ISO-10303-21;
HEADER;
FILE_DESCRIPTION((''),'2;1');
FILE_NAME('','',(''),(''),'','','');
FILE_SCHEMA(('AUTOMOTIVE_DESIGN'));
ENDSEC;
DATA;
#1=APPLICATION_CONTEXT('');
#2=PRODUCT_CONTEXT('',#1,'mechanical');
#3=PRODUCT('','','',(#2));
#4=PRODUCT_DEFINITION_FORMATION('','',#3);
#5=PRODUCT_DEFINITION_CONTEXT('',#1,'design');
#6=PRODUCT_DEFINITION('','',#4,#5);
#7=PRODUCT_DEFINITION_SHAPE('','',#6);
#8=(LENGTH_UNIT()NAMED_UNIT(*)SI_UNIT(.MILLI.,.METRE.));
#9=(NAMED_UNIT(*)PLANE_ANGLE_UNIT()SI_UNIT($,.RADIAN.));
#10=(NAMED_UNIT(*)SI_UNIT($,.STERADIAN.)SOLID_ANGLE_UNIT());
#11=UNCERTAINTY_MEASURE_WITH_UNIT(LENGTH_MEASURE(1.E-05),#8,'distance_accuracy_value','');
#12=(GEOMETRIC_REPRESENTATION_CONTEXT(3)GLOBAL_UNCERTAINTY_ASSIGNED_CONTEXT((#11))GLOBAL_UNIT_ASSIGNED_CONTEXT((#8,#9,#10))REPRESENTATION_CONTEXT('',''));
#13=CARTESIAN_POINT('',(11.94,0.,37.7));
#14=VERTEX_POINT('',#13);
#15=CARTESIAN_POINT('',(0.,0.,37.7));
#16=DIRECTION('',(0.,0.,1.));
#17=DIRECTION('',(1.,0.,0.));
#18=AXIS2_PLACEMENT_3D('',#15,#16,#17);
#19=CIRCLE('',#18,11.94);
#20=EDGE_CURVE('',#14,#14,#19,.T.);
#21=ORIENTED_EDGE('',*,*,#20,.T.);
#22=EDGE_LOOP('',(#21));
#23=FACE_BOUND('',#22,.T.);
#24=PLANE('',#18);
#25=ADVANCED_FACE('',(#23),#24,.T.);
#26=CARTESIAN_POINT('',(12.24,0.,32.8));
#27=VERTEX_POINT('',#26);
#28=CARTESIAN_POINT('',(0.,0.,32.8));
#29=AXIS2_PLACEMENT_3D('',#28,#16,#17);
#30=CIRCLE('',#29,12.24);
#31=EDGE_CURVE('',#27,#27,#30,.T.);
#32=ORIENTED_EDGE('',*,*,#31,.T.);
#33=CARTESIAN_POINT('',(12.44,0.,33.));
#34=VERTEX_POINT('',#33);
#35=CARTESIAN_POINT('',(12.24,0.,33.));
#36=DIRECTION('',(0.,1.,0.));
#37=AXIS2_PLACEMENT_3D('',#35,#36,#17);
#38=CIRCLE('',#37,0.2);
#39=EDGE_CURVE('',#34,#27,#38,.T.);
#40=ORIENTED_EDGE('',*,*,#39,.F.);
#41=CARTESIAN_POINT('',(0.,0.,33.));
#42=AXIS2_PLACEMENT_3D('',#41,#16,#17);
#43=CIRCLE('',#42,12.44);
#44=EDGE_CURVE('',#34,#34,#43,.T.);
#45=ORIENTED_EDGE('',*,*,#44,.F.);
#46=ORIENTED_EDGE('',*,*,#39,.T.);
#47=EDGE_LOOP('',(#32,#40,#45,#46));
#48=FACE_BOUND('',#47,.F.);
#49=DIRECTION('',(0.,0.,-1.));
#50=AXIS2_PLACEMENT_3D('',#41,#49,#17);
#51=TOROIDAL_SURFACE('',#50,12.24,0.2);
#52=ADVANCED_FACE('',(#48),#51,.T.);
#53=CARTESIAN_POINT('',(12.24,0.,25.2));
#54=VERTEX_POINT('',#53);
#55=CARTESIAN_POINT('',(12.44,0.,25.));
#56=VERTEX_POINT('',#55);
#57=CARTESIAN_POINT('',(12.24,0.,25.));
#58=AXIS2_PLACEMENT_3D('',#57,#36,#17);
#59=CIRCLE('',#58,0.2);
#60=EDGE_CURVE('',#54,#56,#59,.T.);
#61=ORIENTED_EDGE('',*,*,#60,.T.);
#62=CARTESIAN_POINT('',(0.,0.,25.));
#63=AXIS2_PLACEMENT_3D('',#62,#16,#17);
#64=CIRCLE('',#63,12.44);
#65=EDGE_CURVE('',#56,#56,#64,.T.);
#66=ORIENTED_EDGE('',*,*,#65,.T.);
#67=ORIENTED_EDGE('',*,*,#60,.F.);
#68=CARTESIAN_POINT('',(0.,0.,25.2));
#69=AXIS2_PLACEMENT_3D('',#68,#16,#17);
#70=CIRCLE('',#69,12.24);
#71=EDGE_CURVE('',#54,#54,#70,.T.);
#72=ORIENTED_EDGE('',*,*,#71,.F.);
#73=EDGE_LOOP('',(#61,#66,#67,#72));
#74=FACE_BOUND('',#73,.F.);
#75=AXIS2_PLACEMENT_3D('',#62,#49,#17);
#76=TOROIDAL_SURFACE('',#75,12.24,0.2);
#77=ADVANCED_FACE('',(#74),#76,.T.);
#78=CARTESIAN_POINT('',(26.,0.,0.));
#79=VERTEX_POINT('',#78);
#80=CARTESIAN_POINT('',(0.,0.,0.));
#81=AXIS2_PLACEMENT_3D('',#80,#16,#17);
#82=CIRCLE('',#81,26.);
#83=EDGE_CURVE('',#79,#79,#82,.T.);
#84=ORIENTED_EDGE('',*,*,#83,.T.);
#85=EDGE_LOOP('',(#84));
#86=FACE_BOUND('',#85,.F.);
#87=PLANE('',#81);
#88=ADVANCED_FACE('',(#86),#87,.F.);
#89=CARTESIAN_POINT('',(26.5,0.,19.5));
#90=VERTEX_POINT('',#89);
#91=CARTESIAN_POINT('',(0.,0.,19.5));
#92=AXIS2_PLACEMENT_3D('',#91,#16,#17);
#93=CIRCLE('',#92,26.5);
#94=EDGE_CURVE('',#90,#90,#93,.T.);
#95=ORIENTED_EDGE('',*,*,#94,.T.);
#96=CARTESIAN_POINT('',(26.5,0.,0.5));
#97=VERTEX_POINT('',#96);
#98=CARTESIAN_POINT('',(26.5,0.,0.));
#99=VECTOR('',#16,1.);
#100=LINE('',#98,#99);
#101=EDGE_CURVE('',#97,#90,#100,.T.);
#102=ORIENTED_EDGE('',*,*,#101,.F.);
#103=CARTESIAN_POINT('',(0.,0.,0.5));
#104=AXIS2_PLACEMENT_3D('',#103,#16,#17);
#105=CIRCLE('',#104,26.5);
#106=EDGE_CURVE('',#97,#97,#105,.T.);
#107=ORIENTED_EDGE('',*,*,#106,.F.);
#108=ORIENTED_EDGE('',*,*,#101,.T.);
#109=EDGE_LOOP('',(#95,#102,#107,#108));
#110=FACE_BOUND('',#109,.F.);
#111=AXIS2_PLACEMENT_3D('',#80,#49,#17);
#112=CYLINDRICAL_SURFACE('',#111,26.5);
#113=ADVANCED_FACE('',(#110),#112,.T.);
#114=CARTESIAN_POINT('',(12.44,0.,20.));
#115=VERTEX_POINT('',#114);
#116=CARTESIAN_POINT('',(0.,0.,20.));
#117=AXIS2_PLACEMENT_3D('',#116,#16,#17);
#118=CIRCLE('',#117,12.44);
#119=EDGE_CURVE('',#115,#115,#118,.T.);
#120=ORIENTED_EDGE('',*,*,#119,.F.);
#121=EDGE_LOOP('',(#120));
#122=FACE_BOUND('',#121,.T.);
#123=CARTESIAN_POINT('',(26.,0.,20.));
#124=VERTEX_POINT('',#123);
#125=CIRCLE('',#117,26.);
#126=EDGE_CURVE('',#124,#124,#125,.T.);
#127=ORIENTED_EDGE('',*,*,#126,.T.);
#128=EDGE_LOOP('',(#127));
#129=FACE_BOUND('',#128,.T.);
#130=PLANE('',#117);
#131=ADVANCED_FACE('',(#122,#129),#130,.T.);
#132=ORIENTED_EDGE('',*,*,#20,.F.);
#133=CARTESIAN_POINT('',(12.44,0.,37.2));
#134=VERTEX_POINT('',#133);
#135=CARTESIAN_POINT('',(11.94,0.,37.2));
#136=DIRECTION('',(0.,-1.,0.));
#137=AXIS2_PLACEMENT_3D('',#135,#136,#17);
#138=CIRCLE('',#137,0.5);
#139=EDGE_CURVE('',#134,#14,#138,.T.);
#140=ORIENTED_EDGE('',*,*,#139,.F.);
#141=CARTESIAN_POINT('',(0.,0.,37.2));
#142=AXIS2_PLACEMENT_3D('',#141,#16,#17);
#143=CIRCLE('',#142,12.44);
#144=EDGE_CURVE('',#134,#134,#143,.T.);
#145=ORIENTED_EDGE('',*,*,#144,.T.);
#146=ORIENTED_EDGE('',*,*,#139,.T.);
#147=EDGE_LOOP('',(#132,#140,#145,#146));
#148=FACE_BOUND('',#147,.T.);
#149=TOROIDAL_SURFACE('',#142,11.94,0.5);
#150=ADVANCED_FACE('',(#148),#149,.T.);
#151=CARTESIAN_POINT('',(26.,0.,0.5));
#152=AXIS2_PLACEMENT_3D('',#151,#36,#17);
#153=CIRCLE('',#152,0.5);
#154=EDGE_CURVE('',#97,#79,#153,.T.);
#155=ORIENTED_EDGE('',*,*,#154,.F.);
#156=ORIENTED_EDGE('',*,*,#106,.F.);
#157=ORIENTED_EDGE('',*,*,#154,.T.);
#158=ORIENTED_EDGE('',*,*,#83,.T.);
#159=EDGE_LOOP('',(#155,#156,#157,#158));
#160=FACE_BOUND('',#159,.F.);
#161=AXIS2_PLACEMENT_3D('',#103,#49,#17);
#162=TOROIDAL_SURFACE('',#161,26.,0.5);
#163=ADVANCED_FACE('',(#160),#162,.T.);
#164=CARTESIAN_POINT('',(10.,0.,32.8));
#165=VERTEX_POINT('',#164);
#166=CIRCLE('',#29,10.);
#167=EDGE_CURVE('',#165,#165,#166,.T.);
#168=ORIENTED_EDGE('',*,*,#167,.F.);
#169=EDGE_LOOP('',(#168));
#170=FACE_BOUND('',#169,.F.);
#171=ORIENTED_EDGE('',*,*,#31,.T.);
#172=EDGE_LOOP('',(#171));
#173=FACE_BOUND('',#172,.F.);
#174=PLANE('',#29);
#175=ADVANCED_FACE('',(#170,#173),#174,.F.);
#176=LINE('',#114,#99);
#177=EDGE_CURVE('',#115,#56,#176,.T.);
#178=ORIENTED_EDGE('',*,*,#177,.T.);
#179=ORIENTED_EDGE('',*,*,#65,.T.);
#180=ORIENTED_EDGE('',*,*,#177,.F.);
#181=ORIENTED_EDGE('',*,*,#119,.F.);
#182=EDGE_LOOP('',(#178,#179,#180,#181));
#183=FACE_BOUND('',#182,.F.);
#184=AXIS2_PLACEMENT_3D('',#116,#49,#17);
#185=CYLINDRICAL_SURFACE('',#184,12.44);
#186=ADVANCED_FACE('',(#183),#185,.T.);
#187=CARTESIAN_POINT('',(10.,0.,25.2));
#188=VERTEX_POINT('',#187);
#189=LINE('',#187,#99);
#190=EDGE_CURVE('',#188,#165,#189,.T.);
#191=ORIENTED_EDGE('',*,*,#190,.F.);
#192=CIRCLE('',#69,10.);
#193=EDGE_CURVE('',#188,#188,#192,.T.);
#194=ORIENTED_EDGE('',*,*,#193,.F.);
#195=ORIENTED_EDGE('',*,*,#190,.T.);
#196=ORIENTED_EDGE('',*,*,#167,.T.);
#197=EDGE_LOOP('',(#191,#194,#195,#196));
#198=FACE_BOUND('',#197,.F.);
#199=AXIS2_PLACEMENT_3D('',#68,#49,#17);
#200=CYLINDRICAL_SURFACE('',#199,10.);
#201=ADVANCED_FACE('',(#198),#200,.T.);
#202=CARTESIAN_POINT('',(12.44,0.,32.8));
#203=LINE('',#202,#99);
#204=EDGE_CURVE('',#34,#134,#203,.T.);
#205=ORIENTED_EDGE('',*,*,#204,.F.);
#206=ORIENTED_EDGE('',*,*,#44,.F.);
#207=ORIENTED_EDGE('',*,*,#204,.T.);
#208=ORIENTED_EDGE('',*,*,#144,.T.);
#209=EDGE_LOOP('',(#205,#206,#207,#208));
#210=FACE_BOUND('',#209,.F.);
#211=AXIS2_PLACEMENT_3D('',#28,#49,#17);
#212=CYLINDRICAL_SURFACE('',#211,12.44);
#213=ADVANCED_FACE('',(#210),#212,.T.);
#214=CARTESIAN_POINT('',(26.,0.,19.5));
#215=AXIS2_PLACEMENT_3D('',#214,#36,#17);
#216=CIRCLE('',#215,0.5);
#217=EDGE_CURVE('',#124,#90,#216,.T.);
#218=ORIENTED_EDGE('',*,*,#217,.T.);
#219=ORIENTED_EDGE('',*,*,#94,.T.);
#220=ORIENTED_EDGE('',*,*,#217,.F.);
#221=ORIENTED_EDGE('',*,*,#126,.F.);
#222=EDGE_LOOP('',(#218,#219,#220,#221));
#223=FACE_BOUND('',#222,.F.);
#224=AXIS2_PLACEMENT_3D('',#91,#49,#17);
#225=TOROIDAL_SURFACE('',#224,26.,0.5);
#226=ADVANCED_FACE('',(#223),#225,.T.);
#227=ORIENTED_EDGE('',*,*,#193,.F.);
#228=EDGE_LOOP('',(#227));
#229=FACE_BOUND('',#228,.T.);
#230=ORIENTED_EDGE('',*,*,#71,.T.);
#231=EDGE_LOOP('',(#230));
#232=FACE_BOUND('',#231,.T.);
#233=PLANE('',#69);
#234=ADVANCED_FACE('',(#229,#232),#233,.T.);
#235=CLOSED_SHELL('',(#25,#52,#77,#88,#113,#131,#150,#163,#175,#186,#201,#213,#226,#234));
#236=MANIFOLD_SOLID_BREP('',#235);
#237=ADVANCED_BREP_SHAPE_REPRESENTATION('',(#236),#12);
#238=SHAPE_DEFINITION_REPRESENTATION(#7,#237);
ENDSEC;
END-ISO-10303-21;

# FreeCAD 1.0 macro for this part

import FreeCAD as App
import Part
import Sketcher

V = App.Vector


def edges_at(feature, points):
    """Names of the edges that pass closest to the given points."""
    edges = feature.Shape.Edges
    near = lambda p: min(range(len(edges)), key=lambda i: edges[i].distToShape(Part.Vertex(*p))[0])
    return sorted({f"Edge{near(p) + 1}" for p in points})

doc = App.newDocument("Part")
body = doc.addObject("PartDesign::Body", "Body")

# Sketch on XY plane
sketch1 = doc.addObject("Sketcher::SketchObject", "Sketch")
body.addObject(sketch1)
sketch1.AttachmentSupport = (doc.XY_Plane, [""])
sketch1.MapMode = "FlatFace"
sketch1.addGeometry(Part.Circle(V(0, 0, 0), V(0, 0, 1), 26), False)
sketch1.addConstraint(Sketcher.Constraint("Coincident", 0, 3, -1, 1))
sketch1.addConstraint(Sketcher.Constraint("Diameter", 0, 53.0))
pad1 = doc.addObject("PartDesign::Pad", "Pad")
body.addObject(pad1)
pad1.Profile = sketch1
pad1.Length = 20

# Sketch on XY plane
sketch2 = doc.addObject("Sketcher::SketchObject", "Sketch001")
body.addObject(sketch2)
sketch2.AttachmentSupport = (doc.XY_Plane, [""])
sketch2.MapMode = "FlatFace"
sketch2.AttachmentOffset = App.Placement(V(0, 0, 20), App.Rotation())
sketch2.addGeometry(Part.Circle(V(0, 0, 0), V(0, 0, 1), 12), False)
sketch2.addConstraint(Sketcher.Constraint("Coincident", 0, 3, -1, 1))
sketch2.addConstraint(Sketcher.Constraint("Diameter", 0, 24.88))
pad2 = doc.addObject("PartDesign::Pad", "Pad001")
body.addObject(pad2)
pad2.Profile = sketch2
pad2.Length = 5.2

# Sketch on XY plane
sketch3 = doc.addObject("Sketcher::SketchObject", "Sketch002")
body.addObject(sketch3)
sketch3.AttachmentSupport = (doc.XY_Plane, [""])
sketch3.MapMode = "FlatFace"
sketch3.AttachmentOffset = App.Placement(V(0, 0, 25.2), App.Rotation())
sketch3.addGeometry(Part.Circle(V(0, 0, 0), V(0, 0, 1), 10), False)
sketch3.addConstraint(Sketcher.Constraint("Coincident", 0, 3, -1, 1))
sketch3.addConstraint(Sketcher.Constraint("Diameter", 0, 20.0))
pad3 = doc.addObject("PartDesign::Pad", "Pad002")
body.addObject(pad3)
pad3.Profile = sketch3
pad3.Length = 7.6

# Sketch on XY plane
sketch4 = doc.addObject("Sketcher::SketchObject", "Sketch003")
body.addObject(sketch4)
sketch4.AttachmentSupport = (doc.XY_Plane, [""])
sketch4.MapMode = "FlatFace"
sketch4.AttachmentOffset = App.Placement(V(0, 0, 32.8), App.Rotation())
sketch4.addGeometry(Part.Circle(V(0, 0, 0), V(0, 0, 1), 12), False)
sketch4.addConstraint(Sketcher.Constraint("Coincident", 0, 3, -1, 1))
sketch4.addConstraint(Sketcher.Constraint("Diameter", 0, 24.88))
pad4 = doc.addObject("PartDesign::Pad", "Pad003")
body.addObject(pad4)
pad4.Profile = sketch4
pad4.Length = 4.9
doc.recompute()

fillet = doc.addObject("PartDesign::Fillet", "Fillet")
body.addObject(fillet)
fillet.Base = (pad4, edges_at(pad4, [(-12.44, 0, 37.7), (-26.5, 0, 20), (-26.5, 0, 0)]))
fillet.Radius = 0.5
doc.recompute()

fillet2 = doc.addObject("PartDesign::Fillet", "Fillet001")
body.addObject(fillet2)
fillet2.Base = (fillet, edges_at(fillet, [(-12.44, 0, 25.2), (-12.44, 0, 32.8)]))
fillet2.Radius = 0.2

doc.recompute()
